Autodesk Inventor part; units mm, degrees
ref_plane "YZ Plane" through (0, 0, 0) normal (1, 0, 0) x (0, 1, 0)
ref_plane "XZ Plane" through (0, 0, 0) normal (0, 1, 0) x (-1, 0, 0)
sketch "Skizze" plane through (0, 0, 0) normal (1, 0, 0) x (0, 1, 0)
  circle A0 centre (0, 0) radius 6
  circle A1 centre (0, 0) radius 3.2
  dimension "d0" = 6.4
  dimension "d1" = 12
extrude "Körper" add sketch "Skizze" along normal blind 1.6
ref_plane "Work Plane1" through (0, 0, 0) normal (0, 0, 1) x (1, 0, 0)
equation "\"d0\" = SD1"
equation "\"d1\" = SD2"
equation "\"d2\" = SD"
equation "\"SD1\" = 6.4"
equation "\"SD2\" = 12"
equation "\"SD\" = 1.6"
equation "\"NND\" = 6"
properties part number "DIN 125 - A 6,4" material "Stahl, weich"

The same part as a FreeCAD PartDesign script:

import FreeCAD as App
import Part
import Sketcher

V = App.Vector
Q = App.Units.Quantity

doc = App.newDocument("Part")
params = doc.addObject("Spreadsheet::Sheet", "Params")
for row, (alias, value) in enumerate([
    ("sketch1_diameter", "12 mm"),
    ("sketch1_diameter2", "6.4 mm"),
    ("pad1_length", "1.6 mm"),
], start=1):
    params.set(f"A{row}", alias)
    params.set(f"B{row}", "=" + value)
    params.setAlias(f"B{row}", alias)

body = doc.addObject("PartDesign::Body", "Body")

sketch1 = body.newObject("Sketcher::SketchObject", "Sketch")
sketch1.AttachmentSupport = (doc.getObject("YZ_Plane"), [""])
sketch1.MapMode = "FlatFace"
sketch1.addGeometry([
    Part.Circle(V(0, 0, 0), V(0, 0, 1), 6),
    Part.Circle(V(0, 0, 0), V(0, 0, 1), 3.2),
], False)
sketch1.addConstraint([
    Sketcher.Constraint("Coincident", 0, 3, -1, 1),
    Sketcher.Constraint("Coincident", 1, 3, -1, 1),
    Sketcher.Constraint("Diameter", 0, Q("12 mm")),
    Sketcher.Constraint("Diameter", 1, Q("6.4 mm")),
])
sketch1.setExpression("Constraints[2]", "Params.sketch1_diameter")
sketch1.setExpression("Constraints[3]", "Params.sketch1_diameter2")
pad1 = body.newObject("PartDesign::Pad", "Pad")
pad1.Profile = sketch1
pad1.setExpression("Length", "Params.pad1_length")

doc.recompute()
